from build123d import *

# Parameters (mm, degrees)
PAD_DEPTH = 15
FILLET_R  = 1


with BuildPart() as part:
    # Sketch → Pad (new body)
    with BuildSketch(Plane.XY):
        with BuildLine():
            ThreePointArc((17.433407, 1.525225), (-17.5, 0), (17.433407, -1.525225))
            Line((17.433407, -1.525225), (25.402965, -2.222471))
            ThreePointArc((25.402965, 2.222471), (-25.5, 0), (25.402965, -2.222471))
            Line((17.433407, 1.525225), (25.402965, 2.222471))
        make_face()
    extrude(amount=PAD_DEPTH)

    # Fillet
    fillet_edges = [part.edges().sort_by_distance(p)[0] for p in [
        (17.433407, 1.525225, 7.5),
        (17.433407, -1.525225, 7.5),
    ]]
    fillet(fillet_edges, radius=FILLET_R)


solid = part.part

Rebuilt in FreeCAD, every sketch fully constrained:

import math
import FreeCAD as App
import Part
import Sketcher
Q = App.Units.Quantity


def edges_at(feature, points):
    """Names of the edges that pass closest to the given points."""
    edges = feature.Shape.Edges
    near = lambda p: min(range(len(edges)), key=lambda i: edges[i].distToShape(Part.Vertex(*p))[0])
    return sorted({f"Edge{near(p) + 1}" for p in points})

doc = App.newDocument("Part")
params = doc.addObject("Spreadsheet::Sheet", "Params")
for row, (alias, value) in enumerate([
    ("sketch1_radius", "17.5 mm"),
    ("sketch1_radius2", "25.5 mm"),
    ("pad1_length", "15 mm"),
    ("fillet_radius", "1 mm"),
], start=1):
    params.set(f"A{row}", alias)
    params.set(f"B{row}", "=" + value)
    params.setAlias(f"B{row}", alias)

body = doc.addObject("PartDesign::Body", "Body")

# Sketch on XY plane
sketch1 = body.newObject("Sketcher::SketchObject", "Sketch")
sketch1.AttachmentSupport = (doc.getObject("XY_Plane"), [""])
sketch1.MapMode = "FlatFace"
sketch1.addGeometry([
    Part.ArcOfCircle(Part.Circle(App.Vector(0, 0, 0), App.Vector(0, 0, 1), 17.5), math.radians(5), math.radians(355)),
    Part.LineSegment(App.Vector(17.4, 1.5, 0), App.Vector(25.4, 2.2, 0)),
    Part.ArcOfCircle(Part.Circle(App.Vector(0, 0, 0), App.Vector(0, 0, 1), 25.5), math.radians(5), math.radians(355)),
    Part.LineSegment(App.Vector(25.4, -2.2, 0), App.Vector(17.4, -1.5, 0)),
], False)
sketch1.addConstraint([
    Sketcher.Constraint("Coincident", 0, 1, 1, 1),
    Sketcher.Constraint("Coincident", 1, 2, 2, 1),
    Sketcher.Constraint("Coincident", 2, 2, 3, 1),
    Sketcher.Constraint("Coincident", 3, 2, 0, 2),
    Sketcher.Constraint("Coincident", 0, 3, -1, 1),
    Sketcher.Constraint("Coincident", 2, 3, -1, 1),
    Sketcher.Constraint("Vertical", 1, 2, 2, 2),
    Sketcher.Constraint("Vertical", 0, 1, 3, 2),
    Sketcher.Constraint("Radius", 0, Q("17.5 mm")),
    Sketcher.Constraint("Radius", 2, Q("25.5 mm")),
    Sketcher.Constraint("Angle", 1, Q("5 deg")),
    Sketcher.Constraint("DistanceY", -1, 1, 1, 2, Q("2.222471 mm")),
])
sketch1.setExpression("Constraints[8]", "Params.sketch1_radius")
sketch1.setExpression("Constraints[9]", "Params.sketch1_radius2")
pad1 = body.newObject("PartDesign::Pad", "Pad")
pad1.Profile = sketch1
pad1.setExpression("Length", "Params.pad1_length")
doc.recompute()

fillet = body.newObject("PartDesign::Fillet", "Fillet")
fillet.Base = (pad1, edges_at(pad1, [(17.433, 1.525, 7.5), (17.433, -1.525, 7.5)]))
fillet.setExpression("Radius", "Params.fillet_radius")

doc.recompute()
